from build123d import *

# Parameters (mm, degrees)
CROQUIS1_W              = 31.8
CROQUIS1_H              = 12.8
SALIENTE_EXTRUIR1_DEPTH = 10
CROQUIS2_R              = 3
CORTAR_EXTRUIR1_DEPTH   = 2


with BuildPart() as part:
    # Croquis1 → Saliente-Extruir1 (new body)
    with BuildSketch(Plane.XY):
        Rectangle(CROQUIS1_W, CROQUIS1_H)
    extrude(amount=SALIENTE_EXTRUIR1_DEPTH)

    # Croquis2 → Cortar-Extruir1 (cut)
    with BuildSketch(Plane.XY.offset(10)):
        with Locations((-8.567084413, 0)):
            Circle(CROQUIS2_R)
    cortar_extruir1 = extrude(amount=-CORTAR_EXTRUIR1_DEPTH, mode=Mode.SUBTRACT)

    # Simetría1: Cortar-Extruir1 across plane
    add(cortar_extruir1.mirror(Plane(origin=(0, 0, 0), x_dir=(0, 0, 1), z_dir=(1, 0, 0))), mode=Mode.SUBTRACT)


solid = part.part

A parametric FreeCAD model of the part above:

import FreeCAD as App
import Part
import Sketcher
from FreeCAD import Vector

doc = App.newDocument("Part")
params = doc.addObject("Spreadsheet::Sheet", "Params")
for row, (alias, value) in enumerate([
    ("sketch1_width", "31.8 mm"),
    ("sketch1_height", "12.8 mm"),
    ("pad1_length", "10 mm"),
    ("sketch2_diameter", "6 mm"),
    ("pocket1_length", "2 mm"),
], start=1):
    params.set(f"A{row}", alias)
    params.set(f"B{row}", "=" + value)
    params.setAlias(f"B{row}", alias)

body = doc.addObject("PartDesign::Body", "Body")

# Sketch on XY plane
sketch1 = body.newObject("Sketcher::SketchObject", "Sketch")
sketch1.AttachmentSupport = (doc.getObject("XY_Plane"), [""])
sketch1.MapMode = "FlatFace"
sketch1.addGeometry(Part.LineSegment(Vector(-16, 6, 0), Vector(-16, -6, 0)), False)
sketch1.addGeometry(Part.LineSegment(Vector(-16, -6, 0), Vector(16, -6, 0)), False)
sketch1.addGeometry(Part.LineSegment(Vector(16, -6, 0), Vector(16, 6, 0)), False)
sketch1.addGeometry(Part.LineSegment(Vector(16, 6, 0), Vector(-16, 6, 0)), False)
sketch1.addConstraint(Sketcher.Constraint("Coincident", 0, 2, 1, 1))
sketch1.addConstraint(Sketcher.Constraint("Coincident", 1, 2, 2, 1))
sketch1.addConstraint(Sketcher.Constraint("Coincident", 2, 2, 3, 1))
sketch1.addConstraint(Sketcher.Constraint("Coincident", 3, 2, 0, 1))
sketch1.addConstraint(Sketcher.Constraint("Vertical", 0))
sketch1.addConstraint(Sketcher.Constraint("Horizontal", 1))
sketch1.addConstraint(Sketcher.Constraint("Vertical", 2))
sketch1.addConstraint(Sketcher.Constraint("Horizontal", 3))
sketch1.addConstraint(Sketcher.Constraint("Symmetric", 0, 2, 2, 2, -1, 1))
sketch1.addConstraint(Sketcher.Constraint("DistanceX", 1, 1, 1, 2, 31.8))
sketch1.addConstraint(Sketcher.Constraint("DistanceY", 0, 2, 0, 1, 12.8))
sketch1.setExpression("Constraints[9]", "Params.sketch1_width")
sketch1.setExpression("Constraints[10]", "Params.sketch1_height")
pad1 = body.newObject("PartDesign::Pad", "Pad")
pad1.Profile = sketch1
pad1.setExpression("Length", "Params.pad1_length")

# Sketch on XY plane
sketch2 = body.newObject("Sketcher::SketchObject", "Sketch001")
sketch2.AttachmentSupport = (doc.getObject("XY_Plane"), [""])
sketch2.MapMode = "FlatFace"
sketch2.AttachmentOffset = App.Placement(Vector(0, 0, 10), App.Rotation())
sketch2.addGeometry(Part.Circle(Vector(-8.6, 0, 0), Vector(0, 0, 1), 3), False)
sketch2.addConstraint(Sketcher.Constraint("PointOnObject", 0, 3, -1))
sketch2.addConstraint(Sketcher.Constraint("Diameter", 0, 6.0))
sketch2.addConstraint(Sketcher.Constraint("DistanceX", 0, 3, -1, 1, 8.567084))
sketch2.setExpression("Constraints[1]", "Params.sketch2_diameter")
pocket1 = body.newObject("PartDesign::Pocket", "Pocket")
pocket1.Profile = sketch2
pocket1.setExpression("Length", "Params.pocket1_length")
doc.recompute()

mirrored = body.newObject("PartDesign::Mirrored", "Mirrored")
mirrored.Originals = [pocket1]
mirrored.MirrorPlane = (doc.getObject("YZ_Plane"), [""])
body.Tip = mirrored

doc.recompute()
